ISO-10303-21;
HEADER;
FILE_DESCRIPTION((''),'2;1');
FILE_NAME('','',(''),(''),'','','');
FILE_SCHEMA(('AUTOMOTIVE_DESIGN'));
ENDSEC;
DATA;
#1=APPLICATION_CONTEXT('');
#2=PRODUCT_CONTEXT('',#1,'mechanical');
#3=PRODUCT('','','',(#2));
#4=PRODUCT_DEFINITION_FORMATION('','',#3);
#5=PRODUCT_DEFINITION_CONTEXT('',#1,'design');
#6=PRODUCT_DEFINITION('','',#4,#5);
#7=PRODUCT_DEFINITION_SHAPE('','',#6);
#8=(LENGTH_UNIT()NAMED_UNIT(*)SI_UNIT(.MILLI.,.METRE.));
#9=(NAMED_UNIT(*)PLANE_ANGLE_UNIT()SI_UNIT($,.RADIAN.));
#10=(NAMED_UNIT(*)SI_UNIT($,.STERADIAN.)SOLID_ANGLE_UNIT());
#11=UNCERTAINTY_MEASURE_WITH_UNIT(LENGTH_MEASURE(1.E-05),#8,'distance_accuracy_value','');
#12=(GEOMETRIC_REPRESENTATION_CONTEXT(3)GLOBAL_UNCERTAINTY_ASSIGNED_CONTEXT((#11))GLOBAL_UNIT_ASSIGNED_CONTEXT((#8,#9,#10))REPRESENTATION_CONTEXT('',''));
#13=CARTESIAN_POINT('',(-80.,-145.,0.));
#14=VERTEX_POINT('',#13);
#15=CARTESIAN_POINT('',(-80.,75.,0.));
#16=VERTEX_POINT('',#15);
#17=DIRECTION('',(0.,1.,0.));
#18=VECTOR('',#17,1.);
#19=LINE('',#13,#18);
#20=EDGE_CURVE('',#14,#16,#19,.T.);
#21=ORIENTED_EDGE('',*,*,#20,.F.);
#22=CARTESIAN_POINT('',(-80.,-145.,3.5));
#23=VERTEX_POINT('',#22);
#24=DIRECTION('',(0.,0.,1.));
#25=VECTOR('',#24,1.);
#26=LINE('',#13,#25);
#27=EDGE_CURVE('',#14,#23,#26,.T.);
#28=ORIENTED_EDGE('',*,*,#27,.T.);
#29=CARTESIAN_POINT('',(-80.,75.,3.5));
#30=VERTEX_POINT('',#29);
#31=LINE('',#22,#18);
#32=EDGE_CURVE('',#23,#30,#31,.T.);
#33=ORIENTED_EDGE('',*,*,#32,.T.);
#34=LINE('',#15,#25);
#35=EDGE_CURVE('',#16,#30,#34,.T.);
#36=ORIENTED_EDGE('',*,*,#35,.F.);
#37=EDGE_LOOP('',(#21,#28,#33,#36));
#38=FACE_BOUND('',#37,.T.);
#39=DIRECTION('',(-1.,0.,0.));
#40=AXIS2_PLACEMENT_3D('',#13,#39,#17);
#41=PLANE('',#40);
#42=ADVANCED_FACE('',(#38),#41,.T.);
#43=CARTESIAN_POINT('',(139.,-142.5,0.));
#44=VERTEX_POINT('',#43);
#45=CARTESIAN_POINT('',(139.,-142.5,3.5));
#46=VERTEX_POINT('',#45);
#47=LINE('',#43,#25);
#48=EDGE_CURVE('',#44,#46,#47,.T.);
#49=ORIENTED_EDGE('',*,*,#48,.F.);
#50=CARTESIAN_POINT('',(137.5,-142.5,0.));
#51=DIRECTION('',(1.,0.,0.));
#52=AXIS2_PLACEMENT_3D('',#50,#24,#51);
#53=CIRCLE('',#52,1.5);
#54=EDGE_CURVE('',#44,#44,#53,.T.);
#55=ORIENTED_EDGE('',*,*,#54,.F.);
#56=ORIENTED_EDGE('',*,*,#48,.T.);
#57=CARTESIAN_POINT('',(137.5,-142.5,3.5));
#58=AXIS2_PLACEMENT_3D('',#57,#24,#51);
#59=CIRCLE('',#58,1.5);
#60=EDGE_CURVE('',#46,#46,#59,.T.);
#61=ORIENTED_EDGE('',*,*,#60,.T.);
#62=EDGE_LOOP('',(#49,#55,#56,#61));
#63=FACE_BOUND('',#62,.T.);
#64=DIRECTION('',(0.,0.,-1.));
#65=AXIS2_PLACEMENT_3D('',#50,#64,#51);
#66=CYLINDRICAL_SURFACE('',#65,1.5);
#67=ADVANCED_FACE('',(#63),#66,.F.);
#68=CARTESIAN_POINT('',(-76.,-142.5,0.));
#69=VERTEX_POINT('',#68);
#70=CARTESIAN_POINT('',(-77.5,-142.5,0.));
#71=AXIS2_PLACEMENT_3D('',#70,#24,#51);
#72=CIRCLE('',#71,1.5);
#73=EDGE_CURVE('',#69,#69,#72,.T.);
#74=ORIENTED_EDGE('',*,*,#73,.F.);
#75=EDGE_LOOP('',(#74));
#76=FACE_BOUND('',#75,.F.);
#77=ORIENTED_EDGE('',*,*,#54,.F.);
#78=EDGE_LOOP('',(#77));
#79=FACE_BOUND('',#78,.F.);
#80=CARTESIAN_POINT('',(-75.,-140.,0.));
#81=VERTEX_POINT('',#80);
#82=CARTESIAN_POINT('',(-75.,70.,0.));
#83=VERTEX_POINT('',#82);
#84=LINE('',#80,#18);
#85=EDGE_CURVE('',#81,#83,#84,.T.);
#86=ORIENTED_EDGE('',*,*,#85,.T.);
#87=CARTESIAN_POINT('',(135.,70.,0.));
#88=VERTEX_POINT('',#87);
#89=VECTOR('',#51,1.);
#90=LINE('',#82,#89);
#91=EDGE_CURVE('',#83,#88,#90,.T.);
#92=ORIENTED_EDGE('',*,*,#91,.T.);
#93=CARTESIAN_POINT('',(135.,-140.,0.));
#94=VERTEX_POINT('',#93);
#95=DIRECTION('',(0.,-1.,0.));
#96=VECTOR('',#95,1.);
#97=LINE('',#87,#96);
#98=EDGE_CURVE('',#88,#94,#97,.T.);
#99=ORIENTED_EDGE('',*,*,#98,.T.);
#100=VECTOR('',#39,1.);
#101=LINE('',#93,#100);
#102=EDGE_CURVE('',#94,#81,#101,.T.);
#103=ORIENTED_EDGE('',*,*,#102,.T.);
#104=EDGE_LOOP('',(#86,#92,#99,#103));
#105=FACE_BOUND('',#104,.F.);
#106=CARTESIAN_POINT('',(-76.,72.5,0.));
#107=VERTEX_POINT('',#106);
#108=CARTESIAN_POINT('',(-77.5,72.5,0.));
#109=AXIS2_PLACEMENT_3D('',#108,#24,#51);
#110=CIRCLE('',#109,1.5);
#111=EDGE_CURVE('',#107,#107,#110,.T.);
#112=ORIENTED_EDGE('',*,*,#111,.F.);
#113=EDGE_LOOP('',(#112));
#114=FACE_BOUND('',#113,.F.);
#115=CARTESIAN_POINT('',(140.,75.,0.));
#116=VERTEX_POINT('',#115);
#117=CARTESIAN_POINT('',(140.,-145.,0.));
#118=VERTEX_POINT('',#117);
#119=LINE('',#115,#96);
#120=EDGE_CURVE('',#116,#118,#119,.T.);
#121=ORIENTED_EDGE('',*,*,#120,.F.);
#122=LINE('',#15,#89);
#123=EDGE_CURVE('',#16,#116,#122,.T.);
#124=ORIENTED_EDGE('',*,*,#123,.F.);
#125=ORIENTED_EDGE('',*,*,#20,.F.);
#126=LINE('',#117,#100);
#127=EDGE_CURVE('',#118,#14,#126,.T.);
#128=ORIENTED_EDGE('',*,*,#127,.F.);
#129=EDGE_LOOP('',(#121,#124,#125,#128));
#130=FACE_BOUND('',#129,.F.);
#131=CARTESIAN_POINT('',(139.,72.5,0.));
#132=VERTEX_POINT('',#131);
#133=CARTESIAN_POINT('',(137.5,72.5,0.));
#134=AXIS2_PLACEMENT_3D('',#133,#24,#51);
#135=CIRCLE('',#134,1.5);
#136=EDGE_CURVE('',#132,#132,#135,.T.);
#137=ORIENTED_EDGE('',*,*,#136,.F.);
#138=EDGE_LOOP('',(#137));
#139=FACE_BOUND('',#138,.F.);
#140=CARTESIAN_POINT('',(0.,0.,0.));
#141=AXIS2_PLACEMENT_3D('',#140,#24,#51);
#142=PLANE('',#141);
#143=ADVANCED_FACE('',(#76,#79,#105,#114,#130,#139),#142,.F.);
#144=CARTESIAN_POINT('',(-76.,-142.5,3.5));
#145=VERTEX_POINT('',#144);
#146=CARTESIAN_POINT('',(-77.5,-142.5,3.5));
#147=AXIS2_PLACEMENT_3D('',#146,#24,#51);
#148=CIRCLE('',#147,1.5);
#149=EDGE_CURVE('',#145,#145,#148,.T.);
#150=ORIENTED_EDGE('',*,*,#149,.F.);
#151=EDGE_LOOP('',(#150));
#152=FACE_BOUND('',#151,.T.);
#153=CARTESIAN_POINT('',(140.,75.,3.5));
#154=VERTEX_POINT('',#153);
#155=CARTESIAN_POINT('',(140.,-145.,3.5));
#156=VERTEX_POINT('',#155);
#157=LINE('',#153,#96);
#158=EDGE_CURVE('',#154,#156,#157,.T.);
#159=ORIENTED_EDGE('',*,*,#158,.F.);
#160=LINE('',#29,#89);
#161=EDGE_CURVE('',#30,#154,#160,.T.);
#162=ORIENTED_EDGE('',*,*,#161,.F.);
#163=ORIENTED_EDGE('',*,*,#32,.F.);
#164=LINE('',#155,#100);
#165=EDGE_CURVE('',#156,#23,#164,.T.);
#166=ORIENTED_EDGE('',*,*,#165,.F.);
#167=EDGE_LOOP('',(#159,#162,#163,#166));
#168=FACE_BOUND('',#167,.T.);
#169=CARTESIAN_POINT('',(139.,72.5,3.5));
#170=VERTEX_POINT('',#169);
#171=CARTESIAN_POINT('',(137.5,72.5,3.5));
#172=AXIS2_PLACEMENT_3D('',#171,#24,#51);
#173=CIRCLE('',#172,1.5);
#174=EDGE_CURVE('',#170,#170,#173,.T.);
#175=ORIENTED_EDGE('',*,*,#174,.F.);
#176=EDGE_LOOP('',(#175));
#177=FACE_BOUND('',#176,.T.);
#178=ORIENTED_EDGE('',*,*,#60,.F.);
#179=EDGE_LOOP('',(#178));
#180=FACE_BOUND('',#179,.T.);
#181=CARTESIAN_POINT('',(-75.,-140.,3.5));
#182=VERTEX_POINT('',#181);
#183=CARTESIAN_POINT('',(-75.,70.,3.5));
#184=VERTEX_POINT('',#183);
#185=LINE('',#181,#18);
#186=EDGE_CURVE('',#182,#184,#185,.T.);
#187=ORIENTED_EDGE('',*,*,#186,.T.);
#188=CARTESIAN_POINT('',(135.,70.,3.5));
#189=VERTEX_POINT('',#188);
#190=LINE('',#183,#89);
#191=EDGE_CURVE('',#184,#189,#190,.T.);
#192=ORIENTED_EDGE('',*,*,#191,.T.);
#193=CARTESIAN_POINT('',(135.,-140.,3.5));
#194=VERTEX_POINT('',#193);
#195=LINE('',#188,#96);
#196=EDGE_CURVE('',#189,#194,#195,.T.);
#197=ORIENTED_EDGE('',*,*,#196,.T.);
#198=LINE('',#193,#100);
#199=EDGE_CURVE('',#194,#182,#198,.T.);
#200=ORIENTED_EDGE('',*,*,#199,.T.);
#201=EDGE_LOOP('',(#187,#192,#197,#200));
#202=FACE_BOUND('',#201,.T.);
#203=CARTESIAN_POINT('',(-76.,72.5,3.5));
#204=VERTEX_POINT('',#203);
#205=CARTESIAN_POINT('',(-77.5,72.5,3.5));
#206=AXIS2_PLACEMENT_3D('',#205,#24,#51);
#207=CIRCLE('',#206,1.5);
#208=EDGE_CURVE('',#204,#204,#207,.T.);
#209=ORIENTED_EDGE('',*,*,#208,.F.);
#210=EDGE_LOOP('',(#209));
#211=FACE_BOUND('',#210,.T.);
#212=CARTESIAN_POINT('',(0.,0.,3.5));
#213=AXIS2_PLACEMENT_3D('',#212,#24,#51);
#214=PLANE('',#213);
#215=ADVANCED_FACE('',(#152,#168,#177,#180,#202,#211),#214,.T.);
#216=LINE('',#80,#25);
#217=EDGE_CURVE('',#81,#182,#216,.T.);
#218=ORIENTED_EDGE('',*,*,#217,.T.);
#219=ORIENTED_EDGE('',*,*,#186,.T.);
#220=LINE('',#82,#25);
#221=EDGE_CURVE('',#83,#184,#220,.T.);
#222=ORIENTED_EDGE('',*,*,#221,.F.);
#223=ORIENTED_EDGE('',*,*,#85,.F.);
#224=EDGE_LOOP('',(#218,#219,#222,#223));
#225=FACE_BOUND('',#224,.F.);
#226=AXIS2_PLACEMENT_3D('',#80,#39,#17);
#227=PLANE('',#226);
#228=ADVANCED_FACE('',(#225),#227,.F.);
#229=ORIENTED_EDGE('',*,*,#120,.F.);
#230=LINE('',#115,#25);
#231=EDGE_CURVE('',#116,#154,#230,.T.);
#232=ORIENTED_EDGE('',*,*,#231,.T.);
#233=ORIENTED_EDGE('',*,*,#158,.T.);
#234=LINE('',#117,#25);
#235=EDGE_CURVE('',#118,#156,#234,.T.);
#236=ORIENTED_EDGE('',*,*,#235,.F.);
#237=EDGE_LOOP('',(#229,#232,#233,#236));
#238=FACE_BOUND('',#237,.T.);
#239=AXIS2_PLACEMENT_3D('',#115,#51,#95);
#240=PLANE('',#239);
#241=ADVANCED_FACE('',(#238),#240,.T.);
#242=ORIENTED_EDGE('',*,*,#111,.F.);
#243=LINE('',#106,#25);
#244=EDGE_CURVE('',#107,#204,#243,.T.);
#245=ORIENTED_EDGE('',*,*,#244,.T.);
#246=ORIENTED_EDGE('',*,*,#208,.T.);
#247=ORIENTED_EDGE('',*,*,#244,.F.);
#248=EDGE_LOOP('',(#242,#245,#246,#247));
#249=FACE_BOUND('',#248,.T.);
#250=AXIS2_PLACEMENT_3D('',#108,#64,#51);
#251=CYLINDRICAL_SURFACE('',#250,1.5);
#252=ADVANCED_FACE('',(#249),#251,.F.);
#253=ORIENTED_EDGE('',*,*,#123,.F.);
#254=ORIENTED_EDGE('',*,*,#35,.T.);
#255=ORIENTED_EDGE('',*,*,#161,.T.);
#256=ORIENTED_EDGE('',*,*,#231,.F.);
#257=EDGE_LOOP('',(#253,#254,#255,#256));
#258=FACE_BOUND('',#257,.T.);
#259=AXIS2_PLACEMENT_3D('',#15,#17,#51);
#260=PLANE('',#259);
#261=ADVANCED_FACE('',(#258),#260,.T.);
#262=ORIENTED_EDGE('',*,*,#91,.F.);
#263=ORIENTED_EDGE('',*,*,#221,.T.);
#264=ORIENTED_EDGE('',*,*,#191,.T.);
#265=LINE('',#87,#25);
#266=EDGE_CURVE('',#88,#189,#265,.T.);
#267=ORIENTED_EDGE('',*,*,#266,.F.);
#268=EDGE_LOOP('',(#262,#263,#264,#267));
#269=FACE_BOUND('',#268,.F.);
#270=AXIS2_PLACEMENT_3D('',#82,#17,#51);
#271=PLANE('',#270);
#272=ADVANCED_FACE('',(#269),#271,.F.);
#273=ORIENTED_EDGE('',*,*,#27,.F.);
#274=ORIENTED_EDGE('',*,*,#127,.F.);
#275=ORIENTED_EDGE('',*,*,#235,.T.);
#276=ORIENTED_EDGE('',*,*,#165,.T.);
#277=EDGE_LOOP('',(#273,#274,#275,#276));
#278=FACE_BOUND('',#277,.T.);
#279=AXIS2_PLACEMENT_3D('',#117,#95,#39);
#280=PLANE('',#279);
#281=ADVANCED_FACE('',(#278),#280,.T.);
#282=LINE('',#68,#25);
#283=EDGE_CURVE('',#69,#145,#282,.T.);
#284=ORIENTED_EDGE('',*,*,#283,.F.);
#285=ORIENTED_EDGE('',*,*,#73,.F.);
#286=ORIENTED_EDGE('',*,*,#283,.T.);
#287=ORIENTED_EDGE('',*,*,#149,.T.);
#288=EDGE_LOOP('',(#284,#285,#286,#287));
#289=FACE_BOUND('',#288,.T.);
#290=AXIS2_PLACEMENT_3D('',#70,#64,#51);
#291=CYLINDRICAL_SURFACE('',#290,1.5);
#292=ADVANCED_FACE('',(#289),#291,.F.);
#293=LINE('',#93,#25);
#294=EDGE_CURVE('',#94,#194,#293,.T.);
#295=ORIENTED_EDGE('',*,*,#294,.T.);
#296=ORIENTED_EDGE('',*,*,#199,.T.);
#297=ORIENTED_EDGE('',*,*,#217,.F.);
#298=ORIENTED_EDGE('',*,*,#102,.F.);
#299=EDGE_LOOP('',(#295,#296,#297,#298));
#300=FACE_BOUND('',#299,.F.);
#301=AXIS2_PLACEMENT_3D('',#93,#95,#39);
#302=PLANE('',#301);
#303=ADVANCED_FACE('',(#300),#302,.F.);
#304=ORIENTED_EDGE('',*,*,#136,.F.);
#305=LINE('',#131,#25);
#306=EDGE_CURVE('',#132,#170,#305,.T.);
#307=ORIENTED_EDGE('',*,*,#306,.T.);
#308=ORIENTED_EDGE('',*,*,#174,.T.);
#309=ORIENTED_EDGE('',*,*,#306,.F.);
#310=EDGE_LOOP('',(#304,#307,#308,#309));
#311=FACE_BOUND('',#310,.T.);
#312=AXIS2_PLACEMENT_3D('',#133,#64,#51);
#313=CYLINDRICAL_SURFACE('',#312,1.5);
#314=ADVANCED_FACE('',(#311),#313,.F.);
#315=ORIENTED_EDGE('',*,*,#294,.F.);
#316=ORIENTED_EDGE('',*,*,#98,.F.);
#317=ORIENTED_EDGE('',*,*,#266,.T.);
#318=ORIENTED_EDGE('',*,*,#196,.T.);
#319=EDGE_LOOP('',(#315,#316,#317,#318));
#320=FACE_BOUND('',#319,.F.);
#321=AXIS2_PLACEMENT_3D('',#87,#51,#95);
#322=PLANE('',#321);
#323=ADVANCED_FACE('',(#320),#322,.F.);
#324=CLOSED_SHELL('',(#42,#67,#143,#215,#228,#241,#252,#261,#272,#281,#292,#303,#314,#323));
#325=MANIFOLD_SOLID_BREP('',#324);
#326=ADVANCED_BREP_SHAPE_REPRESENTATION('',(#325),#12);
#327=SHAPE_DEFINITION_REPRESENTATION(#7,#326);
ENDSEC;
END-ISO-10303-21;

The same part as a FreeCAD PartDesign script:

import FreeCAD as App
import Part
import Sketcher
from FreeCAD import Vector

doc = App.newDocument("Part")
body = doc.addObject("PartDesign::Body", "Body")

sketch1 = body.newObject("Sketcher::SketchObject", "Sketch")
sketch1.AttachmentSupport = (doc.getObject("XY_Plane"), [""])
sketch1.MapMode = "FlatFace"
sketch1.addGeometry([
    Part.LineSegment(Vector(140, 75, 0), Vector(-80, 75, 0)),
    Part.LineSegment(Vector(-80, 75, 0), Vector(-80, -145, 0)),
    Part.LineSegment(Vector(-80, -145, 0), Vector(140, -145, 0)),
    Part.LineSegment(Vector(140, -145, 0), Vector(140, 75, 0)),
    Part.Circle(Vector(-77.5, -142.5, 0), Vector(0, 0, 1), 1.5),
    Part.Circle(Vector(137.5, -142.5, 0), Vector(0, 0, 1), 1.5),
    Part.Circle(Vector(-77.5, 72.5, 0), Vector(0, 0, 1), 1.5),
    Part.LineSegment(Vector(-75, -140, 0), Vector(-75, 70, 0)),
    Part.LineSegment(Vector(-75, 70, 0), Vector(135, 70, 0)),
    Part.LineSegment(Vector(135, 70, 0), Vector(135, -140, 0)),
    Part.LineSegment(Vector(135, -140, 0), Vector(-75, -140, 0)),
    Part.Circle(Vector(137.5, 72.5, 0), Vector(0, 0, 1), 1.5),
], False)
sketch1.addConstraint([
    Sketcher.Constraint("Coincident", 0, 2, 1, 1),
    Sketcher.Constraint("Coincident", 1, 2, 2, 1),
    Sketcher.Constraint("Coincident", 2, 2, 3, 1),
    Sketcher.Constraint("Coincident", 3, 2, 0, 1),
    Sketcher.Constraint("Coincident", 7, 2, 8, 1),
    Sketcher.Constraint("Coincident", 8, 2, 9, 1),
    Sketcher.Constraint("Coincident", 9, 2, 10, 1),
    Sketcher.Constraint("Coincident", 10, 2, 7, 1),
    Sketcher.Constraint("Horizontal", 0),
    Sketcher.Constraint("Vertical", 1),
    Sketcher.Constraint("Horizontal", 2),
    Sketcher.Constraint("Vertical", 3),
    Sketcher.Constraint("Vertical", 7),
    Sketcher.Constraint("Horizontal", 8),
    Sketcher.Constraint("Vertical", 9),
    Sketcher.Constraint("Horizontal", 10),
    Sketcher.Constraint("Equal", 4, 5),
    Sketcher.Constraint("Equal", 5, 6),
    Sketcher.Constraint("Equal", 6, 11),
    Sketcher.Constraint("Horizontal", 4, 3, 5, 3),
    Sketcher.Constraint("Horizontal", 6, 3, 11, 3),
    Sketcher.Constraint("Vertical", 4, 3, 6, 3),
    Sketcher.Constraint("Vertical", 5, 3, 11, 3),
    Sketcher.Constraint("Equal", 2, 1),
    Sketcher.Constraint("Equal", 10, 7),
    Sketcher.Constraint("Diameter", 4, 3.0),
    Sketcher.Constraint("DistanceX", 0, 2, 0, 1, 220.0),
    Sketcher.Constraint("DistanceX", 8, 1, 8, 2, 210.0),
    Sketcher.Constraint("DistanceX", 0, 2, 7, 2, 5.0),
    Sketcher.Constraint("DistanceY", 7, 2, 0, 2, 5.0),
    Sketcher.Constraint("DistanceX", 0, 2, 6, 3, 2.5),
    Sketcher.Constraint("DistanceY", 6, 3, 0, 2, 2.5),
    Sketcher.Constraint("DistanceY", 1, 2, 4, 3, 2.5),
    Sketcher.Constraint("DistanceX", 5, 3, 2, 2, 2.5),
    Sketcher.Constraint("DistanceX", 0, 2, -1, 1, 80.0),
    Sketcher.Constraint("DistanceY", -1, 1, 0, 2, 75.0),
])
pad1 = body.newObject("PartDesign::Pad", "Pad")
pad1.Profile = sketch1
pad1.Length = 3.5

doc.recompute()
